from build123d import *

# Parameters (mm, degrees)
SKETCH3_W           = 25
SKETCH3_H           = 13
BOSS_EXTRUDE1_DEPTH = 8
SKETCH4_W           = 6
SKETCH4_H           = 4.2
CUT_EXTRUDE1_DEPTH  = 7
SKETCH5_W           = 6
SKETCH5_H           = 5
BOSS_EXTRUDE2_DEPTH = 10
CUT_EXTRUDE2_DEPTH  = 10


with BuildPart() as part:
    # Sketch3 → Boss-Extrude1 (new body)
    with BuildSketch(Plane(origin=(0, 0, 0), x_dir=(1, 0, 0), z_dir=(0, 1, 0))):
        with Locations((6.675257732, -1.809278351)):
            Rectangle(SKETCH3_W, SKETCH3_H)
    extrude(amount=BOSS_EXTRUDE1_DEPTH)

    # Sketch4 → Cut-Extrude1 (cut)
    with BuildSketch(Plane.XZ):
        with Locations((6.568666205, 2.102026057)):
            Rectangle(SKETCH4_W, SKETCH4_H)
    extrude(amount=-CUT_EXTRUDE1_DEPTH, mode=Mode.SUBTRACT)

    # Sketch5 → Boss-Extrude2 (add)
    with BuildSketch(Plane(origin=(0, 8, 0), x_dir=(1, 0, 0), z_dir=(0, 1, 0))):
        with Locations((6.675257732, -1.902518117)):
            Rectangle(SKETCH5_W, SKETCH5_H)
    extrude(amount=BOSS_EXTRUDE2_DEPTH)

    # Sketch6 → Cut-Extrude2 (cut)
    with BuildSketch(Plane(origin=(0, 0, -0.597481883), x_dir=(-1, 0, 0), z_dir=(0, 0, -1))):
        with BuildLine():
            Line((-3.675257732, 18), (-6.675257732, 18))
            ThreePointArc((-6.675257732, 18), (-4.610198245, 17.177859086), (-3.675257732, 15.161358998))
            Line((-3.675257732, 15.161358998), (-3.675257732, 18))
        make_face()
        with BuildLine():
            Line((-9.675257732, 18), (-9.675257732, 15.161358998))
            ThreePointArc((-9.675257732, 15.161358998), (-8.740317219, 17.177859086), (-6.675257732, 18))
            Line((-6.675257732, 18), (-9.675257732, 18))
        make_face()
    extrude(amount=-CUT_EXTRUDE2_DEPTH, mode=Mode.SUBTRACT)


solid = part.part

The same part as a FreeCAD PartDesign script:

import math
import FreeCAD as App
import Part
import Sketcher

doc = App.newDocument("Part")
params = doc.addObject("Spreadsheet::Sheet", "Params")
for row, (alias, value) in enumerate([
    ("sketch1_width", "25 mm"),
    ("sketch1_height", "13 mm"),
    ("pad1_length", "8 mm"),
    ("sketch2_width", "6 mm"),
    ("sketch2_height", "4.2 mm"),
    ("pocket1_length", "7 mm"),
    ("sketch3_width", "6 mm"),
    ("sketch3_height", "5 mm"),
    ("pad2_length", "10 mm"),
    ("sketch4_width", "3 mm"),
    ("pocket2_length", "10 mm"),
], start=1):
    params.set(f"A{row}", alias)
    params.set(f"B{row}", "=" + value)
    params.setAlias(f"B{row}", alias)

body = doc.addObject("PartDesign::Body", "Body")

# Sketch on XZ plane
sketch1 = body.newObject("Sketcher::SketchObject", "Sketch")
sketch1.AttachmentSupport = (doc.getObject("XZ_Plane"), [""])
sketch1.MapMode = "FlatFace"
sketch1.addGeometry([
    Part.LineSegment(App.Vector(-6, -5, 0), App.Vector(-6, 8, 0)),
    Part.LineSegment(App.Vector(-6, 8, 0), App.Vector(19, 8, 0)),
    Part.LineSegment(App.Vector(19, 8, 0), App.Vector(19, -5, 0)),
    Part.LineSegment(App.Vector(19, -5, 0), App.Vector(-6, -5, 0)),
], False)
sketch1.addConstraint([
    Sketcher.Constraint("Coincident", 0, 2, 1, 1),
    Sketcher.Constraint("Coincident", 1, 2, 2, 1),
    Sketcher.Constraint("Coincident", 2, 2, 3, 1),
    Sketcher.Constraint("Coincident", 3, 2, 0, 1),
    Sketcher.Constraint("Vertical", 0),
    Sketcher.Constraint("Horizontal", 1),
    Sketcher.Constraint("Vertical", 2),
    Sketcher.Constraint("Horizontal", 3),
    Sketcher.Constraint("DistanceX", 1, 1, 1, 2, 25.0),
    Sketcher.Constraint("DistanceY", 0, 1, 0, 2, 13.0),
    Sketcher.Constraint("DistanceY", -1, 1, 0, 2, 8.309278),
    Sketcher.Constraint("DistanceX", 0, 2, -1, 1, 5.824742),
])
sketch1.setExpression("Constraints[8]", "Params.sketch1_width")
sketch1.setExpression("Constraints[9]", "Params.sketch1_height")
pad1 = body.newObject("PartDesign::Pad", "Pad")
pad1.Profile = sketch1
pad1.setExpression("Length", "Params.pad1_length")
pad1.Reversed = True

# Sketch on XZ plane
sketch2 = body.newObject("Sketcher::SketchObject", "Sketch001")
sketch2.AttachmentSupport = (doc.getObject("XZ_Plane"), [""])
sketch2.MapMode = "FlatFace"
sketch2.addGeometry([
    Part.LineSegment(App.Vector(3.6, 4.2, 0), App.Vector(3.6, 0, 0)),
    Part.LineSegment(App.Vector(3.6, 0, 0), App.Vector(9.6, 0, 0)),
    Part.LineSegment(App.Vector(9.6, 0, 0), App.Vector(9.6, 4.2, 0)),
    Part.LineSegment(App.Vector(9.6, 4.2, 0), App.Vector(3.6, 4.2, 0)),
], False)
sketch2.addConstraint([
    Sketcher.Constraint("Coincident", 0, 2, 1, 1),
    Sketcher.Constraint("Coincident", 1, 2, 2, 1),
    Sketcher.Constraint("Coincident", 2, 2, 3, 1),
    Sketcher.Constraint("Coincident", 3, 2, 0, 1),
    Sketcher.Constraint("Vertical", 0),
    Sketcher.Constraint("Horizontal", 1),
    Sketcher.Constraint("Vertical", 2),
    Sketcher.Constraint("Horizontal", 3),
    Sketcher.Constraint("DistanceX", 1, 1, 1, 2, 6.0),
    Sketcher.Constraint("DistanceY", 0, 2, 0, 1, 4.2),
    Sketcher.Constraint("DistanceX", -1, 1, 0, 2, 3.568666),
    Sketcher.Constraint("DistanceY", -1, 1, 0, 2, 0.002026),
])
sketch2.setExpression("Constraints[8]", "Params.sketch2_width")
sketch2.setExpression("Constraints[9]", "Params.sketch2_height")
pocket1 = body.newObject("PartDesign::Pocket", "Pocket")
pocket1.Profile = sketch2
pocket1.setExpression("Length", "Params.pocket1_length")

# Sketch on XZ plane
sketch3 = body.newObject("Sketcher::SketchObject", "Sketch002")
sketch3.AttachmentSupport = (doc.getObject("XZ_Plane"), [""])
sketch3.MapMode = "FlatFace"
sketch3.AttachmentOffset = App.Placement(App.Vector(0, 0, -8), App.Rotation())
sketch3.addGeometry([
    Part.LineSegment(App.Vector(4, -1, 0), App.Vector(4, 4, 0)),
    Part.LineSegment(App.Vector(4, 4, 0), App.Vector(10, 4, 0)),
    Part.LineSegment(App.Vector(10, 4, 0), App.Vector(10, -1, 0)),
    Part.LineSegment(App.Vector(10, -1, 0), App.Vector(4, -1, 0)),
], False)
sketch3.addConstraint([
    Sketcher.Constraint("Coincident", 0, 2, 1, 1),
    Sketcher.Constraint("Coincident", 1, 2, 2, 1),
    Sketcher.Constraint("Coincident", 2, 2, 3, 1),
    Sketcher.Constraint("Coincident", 3, 2, 0, 1),
    Sketcher.Constraint("Vertical", 0),
    Sketcher.Constraint("Horizontal", 1),
    Sketcher.Constraint("Vertical", 2),
    Sketcher.Constraint("Horizontal", 3),
    Sketcher.Constraint("DistanceX", 1, 1, 1, 2, 6.0),
    Sketcher.Constraint("DistanceY", 0, 1, 0, 2, 5.0),
    Sketcher.Constraint("DistanceY", -1, 1, 0, 2, 4.402518),
    Sketcher.Constraint("DistanceX", -1, 1, 0, 2, 3.675258),
])
sketch3.setExpression("Constraints[8]", "Params.sketch3_width")
sketch3.setExpression("Constraints[9]", "Params.sketch3_height")
pad2 = body.newObject("PartDesign::Pad", "Pad001")
pad2.Profile = sketch3
pad2.setExpression("Length", "Params.pad2_length")
pad2.Reversed = True

# Sketch on XY plane
sketch4 = body.newObject("Sketcher::SketchObject", "Sketch003")
sketch4.AttachmentSupport = (doc.getObject("XY_Plane"), [""])
sketch4.MapMode = "FlatFace"
sketch4.AttachmentOffset = App.Placement(App.Vector(0, 0, -0.597482), App.Rotation())
sketch4.addGeometry([
    Part.LineSegment(App.Vector(3.7, 18, 0), App.Vector(6.7, 18, 0)),  # 0
    Part.ArcOfCircle(Part.Circle(App.Vector(6.7, 15, 0), App.Vector(0, 0, 1), 3), math.radians(90), math.radians(177)),  # 1
    Part.LineSegment(App.Vector(3.7, 15.2, 0), App.Vector(3.7, 18, 0)),  # 2
    Part.LineSegment(App.Vector(9.7, 18, 0), App.Vector(9.7, 15.2, 0)),  # 3
    Part.ArcOfCircle(Part.Circle(App.Vector(6.7, 15, 0), App.Vector(0, 0, 1), 3), math.radians(3), math.radians(90)),  # 4
    Part.LineSegment(App.Vector(6.7, 18, 0), App.Vector(9.7, 18, 0)),  # 5
], False)
sketch4.addConstraint([
    Sketcher.Constraint("Tangent", 0, 2, 1, 1),
    Sketcher.Constraint("Coincident", 1, 2, 2, 1),
    Sketcher.Constraint("Coincident", 2, 2, 0, 1),
    Sketcher.Constraint("Coincident", 3, 2, 4, 1),
    Sketcher.Constraint("Tangent", 4, 2, 5, 1),
    Sketcher.Constraint("Coincident", 5, 2, 3, 1),
    Sketcher.Constraint("Horizontal", 0),
    Sketcher.Constraint("Vertical", 2),
    Sketcher.Constraint("Vertical", 3),
    Sketcher.Constraint("Horizontal", 5),
    Sketcher.Constraint("Coincident", 4, 3, 1, 3),
    Sketcher.Constraint("Equal", 1, 4),
    Sketcher.Constraint("Horizontal", 1, 2, 3, 2),
    Sketcher.Constraint("DistanceX", 0, 1, 0, 2, 3.0),
    Sketcher.Constraint("DistanceY", -1, 1, 0, 2, 18.0),
    Sketcher.Constraint("Radius", 1, 3.004586),
    Sketcher.Constraint("DistanceX", -1, 1, 1, 3, 6.675258),
])
sketch4.setExpression("Constraints[13]", "Params.sketch4_width")
pocket2 = body.newObject("PartDesign::Pocket", "Pocket001")
pocket2.Profile = sketch4
pocket2.setExpression("Length", "Params.pocket2_length")
pocket2.Reversed = True

doc.recompute()
